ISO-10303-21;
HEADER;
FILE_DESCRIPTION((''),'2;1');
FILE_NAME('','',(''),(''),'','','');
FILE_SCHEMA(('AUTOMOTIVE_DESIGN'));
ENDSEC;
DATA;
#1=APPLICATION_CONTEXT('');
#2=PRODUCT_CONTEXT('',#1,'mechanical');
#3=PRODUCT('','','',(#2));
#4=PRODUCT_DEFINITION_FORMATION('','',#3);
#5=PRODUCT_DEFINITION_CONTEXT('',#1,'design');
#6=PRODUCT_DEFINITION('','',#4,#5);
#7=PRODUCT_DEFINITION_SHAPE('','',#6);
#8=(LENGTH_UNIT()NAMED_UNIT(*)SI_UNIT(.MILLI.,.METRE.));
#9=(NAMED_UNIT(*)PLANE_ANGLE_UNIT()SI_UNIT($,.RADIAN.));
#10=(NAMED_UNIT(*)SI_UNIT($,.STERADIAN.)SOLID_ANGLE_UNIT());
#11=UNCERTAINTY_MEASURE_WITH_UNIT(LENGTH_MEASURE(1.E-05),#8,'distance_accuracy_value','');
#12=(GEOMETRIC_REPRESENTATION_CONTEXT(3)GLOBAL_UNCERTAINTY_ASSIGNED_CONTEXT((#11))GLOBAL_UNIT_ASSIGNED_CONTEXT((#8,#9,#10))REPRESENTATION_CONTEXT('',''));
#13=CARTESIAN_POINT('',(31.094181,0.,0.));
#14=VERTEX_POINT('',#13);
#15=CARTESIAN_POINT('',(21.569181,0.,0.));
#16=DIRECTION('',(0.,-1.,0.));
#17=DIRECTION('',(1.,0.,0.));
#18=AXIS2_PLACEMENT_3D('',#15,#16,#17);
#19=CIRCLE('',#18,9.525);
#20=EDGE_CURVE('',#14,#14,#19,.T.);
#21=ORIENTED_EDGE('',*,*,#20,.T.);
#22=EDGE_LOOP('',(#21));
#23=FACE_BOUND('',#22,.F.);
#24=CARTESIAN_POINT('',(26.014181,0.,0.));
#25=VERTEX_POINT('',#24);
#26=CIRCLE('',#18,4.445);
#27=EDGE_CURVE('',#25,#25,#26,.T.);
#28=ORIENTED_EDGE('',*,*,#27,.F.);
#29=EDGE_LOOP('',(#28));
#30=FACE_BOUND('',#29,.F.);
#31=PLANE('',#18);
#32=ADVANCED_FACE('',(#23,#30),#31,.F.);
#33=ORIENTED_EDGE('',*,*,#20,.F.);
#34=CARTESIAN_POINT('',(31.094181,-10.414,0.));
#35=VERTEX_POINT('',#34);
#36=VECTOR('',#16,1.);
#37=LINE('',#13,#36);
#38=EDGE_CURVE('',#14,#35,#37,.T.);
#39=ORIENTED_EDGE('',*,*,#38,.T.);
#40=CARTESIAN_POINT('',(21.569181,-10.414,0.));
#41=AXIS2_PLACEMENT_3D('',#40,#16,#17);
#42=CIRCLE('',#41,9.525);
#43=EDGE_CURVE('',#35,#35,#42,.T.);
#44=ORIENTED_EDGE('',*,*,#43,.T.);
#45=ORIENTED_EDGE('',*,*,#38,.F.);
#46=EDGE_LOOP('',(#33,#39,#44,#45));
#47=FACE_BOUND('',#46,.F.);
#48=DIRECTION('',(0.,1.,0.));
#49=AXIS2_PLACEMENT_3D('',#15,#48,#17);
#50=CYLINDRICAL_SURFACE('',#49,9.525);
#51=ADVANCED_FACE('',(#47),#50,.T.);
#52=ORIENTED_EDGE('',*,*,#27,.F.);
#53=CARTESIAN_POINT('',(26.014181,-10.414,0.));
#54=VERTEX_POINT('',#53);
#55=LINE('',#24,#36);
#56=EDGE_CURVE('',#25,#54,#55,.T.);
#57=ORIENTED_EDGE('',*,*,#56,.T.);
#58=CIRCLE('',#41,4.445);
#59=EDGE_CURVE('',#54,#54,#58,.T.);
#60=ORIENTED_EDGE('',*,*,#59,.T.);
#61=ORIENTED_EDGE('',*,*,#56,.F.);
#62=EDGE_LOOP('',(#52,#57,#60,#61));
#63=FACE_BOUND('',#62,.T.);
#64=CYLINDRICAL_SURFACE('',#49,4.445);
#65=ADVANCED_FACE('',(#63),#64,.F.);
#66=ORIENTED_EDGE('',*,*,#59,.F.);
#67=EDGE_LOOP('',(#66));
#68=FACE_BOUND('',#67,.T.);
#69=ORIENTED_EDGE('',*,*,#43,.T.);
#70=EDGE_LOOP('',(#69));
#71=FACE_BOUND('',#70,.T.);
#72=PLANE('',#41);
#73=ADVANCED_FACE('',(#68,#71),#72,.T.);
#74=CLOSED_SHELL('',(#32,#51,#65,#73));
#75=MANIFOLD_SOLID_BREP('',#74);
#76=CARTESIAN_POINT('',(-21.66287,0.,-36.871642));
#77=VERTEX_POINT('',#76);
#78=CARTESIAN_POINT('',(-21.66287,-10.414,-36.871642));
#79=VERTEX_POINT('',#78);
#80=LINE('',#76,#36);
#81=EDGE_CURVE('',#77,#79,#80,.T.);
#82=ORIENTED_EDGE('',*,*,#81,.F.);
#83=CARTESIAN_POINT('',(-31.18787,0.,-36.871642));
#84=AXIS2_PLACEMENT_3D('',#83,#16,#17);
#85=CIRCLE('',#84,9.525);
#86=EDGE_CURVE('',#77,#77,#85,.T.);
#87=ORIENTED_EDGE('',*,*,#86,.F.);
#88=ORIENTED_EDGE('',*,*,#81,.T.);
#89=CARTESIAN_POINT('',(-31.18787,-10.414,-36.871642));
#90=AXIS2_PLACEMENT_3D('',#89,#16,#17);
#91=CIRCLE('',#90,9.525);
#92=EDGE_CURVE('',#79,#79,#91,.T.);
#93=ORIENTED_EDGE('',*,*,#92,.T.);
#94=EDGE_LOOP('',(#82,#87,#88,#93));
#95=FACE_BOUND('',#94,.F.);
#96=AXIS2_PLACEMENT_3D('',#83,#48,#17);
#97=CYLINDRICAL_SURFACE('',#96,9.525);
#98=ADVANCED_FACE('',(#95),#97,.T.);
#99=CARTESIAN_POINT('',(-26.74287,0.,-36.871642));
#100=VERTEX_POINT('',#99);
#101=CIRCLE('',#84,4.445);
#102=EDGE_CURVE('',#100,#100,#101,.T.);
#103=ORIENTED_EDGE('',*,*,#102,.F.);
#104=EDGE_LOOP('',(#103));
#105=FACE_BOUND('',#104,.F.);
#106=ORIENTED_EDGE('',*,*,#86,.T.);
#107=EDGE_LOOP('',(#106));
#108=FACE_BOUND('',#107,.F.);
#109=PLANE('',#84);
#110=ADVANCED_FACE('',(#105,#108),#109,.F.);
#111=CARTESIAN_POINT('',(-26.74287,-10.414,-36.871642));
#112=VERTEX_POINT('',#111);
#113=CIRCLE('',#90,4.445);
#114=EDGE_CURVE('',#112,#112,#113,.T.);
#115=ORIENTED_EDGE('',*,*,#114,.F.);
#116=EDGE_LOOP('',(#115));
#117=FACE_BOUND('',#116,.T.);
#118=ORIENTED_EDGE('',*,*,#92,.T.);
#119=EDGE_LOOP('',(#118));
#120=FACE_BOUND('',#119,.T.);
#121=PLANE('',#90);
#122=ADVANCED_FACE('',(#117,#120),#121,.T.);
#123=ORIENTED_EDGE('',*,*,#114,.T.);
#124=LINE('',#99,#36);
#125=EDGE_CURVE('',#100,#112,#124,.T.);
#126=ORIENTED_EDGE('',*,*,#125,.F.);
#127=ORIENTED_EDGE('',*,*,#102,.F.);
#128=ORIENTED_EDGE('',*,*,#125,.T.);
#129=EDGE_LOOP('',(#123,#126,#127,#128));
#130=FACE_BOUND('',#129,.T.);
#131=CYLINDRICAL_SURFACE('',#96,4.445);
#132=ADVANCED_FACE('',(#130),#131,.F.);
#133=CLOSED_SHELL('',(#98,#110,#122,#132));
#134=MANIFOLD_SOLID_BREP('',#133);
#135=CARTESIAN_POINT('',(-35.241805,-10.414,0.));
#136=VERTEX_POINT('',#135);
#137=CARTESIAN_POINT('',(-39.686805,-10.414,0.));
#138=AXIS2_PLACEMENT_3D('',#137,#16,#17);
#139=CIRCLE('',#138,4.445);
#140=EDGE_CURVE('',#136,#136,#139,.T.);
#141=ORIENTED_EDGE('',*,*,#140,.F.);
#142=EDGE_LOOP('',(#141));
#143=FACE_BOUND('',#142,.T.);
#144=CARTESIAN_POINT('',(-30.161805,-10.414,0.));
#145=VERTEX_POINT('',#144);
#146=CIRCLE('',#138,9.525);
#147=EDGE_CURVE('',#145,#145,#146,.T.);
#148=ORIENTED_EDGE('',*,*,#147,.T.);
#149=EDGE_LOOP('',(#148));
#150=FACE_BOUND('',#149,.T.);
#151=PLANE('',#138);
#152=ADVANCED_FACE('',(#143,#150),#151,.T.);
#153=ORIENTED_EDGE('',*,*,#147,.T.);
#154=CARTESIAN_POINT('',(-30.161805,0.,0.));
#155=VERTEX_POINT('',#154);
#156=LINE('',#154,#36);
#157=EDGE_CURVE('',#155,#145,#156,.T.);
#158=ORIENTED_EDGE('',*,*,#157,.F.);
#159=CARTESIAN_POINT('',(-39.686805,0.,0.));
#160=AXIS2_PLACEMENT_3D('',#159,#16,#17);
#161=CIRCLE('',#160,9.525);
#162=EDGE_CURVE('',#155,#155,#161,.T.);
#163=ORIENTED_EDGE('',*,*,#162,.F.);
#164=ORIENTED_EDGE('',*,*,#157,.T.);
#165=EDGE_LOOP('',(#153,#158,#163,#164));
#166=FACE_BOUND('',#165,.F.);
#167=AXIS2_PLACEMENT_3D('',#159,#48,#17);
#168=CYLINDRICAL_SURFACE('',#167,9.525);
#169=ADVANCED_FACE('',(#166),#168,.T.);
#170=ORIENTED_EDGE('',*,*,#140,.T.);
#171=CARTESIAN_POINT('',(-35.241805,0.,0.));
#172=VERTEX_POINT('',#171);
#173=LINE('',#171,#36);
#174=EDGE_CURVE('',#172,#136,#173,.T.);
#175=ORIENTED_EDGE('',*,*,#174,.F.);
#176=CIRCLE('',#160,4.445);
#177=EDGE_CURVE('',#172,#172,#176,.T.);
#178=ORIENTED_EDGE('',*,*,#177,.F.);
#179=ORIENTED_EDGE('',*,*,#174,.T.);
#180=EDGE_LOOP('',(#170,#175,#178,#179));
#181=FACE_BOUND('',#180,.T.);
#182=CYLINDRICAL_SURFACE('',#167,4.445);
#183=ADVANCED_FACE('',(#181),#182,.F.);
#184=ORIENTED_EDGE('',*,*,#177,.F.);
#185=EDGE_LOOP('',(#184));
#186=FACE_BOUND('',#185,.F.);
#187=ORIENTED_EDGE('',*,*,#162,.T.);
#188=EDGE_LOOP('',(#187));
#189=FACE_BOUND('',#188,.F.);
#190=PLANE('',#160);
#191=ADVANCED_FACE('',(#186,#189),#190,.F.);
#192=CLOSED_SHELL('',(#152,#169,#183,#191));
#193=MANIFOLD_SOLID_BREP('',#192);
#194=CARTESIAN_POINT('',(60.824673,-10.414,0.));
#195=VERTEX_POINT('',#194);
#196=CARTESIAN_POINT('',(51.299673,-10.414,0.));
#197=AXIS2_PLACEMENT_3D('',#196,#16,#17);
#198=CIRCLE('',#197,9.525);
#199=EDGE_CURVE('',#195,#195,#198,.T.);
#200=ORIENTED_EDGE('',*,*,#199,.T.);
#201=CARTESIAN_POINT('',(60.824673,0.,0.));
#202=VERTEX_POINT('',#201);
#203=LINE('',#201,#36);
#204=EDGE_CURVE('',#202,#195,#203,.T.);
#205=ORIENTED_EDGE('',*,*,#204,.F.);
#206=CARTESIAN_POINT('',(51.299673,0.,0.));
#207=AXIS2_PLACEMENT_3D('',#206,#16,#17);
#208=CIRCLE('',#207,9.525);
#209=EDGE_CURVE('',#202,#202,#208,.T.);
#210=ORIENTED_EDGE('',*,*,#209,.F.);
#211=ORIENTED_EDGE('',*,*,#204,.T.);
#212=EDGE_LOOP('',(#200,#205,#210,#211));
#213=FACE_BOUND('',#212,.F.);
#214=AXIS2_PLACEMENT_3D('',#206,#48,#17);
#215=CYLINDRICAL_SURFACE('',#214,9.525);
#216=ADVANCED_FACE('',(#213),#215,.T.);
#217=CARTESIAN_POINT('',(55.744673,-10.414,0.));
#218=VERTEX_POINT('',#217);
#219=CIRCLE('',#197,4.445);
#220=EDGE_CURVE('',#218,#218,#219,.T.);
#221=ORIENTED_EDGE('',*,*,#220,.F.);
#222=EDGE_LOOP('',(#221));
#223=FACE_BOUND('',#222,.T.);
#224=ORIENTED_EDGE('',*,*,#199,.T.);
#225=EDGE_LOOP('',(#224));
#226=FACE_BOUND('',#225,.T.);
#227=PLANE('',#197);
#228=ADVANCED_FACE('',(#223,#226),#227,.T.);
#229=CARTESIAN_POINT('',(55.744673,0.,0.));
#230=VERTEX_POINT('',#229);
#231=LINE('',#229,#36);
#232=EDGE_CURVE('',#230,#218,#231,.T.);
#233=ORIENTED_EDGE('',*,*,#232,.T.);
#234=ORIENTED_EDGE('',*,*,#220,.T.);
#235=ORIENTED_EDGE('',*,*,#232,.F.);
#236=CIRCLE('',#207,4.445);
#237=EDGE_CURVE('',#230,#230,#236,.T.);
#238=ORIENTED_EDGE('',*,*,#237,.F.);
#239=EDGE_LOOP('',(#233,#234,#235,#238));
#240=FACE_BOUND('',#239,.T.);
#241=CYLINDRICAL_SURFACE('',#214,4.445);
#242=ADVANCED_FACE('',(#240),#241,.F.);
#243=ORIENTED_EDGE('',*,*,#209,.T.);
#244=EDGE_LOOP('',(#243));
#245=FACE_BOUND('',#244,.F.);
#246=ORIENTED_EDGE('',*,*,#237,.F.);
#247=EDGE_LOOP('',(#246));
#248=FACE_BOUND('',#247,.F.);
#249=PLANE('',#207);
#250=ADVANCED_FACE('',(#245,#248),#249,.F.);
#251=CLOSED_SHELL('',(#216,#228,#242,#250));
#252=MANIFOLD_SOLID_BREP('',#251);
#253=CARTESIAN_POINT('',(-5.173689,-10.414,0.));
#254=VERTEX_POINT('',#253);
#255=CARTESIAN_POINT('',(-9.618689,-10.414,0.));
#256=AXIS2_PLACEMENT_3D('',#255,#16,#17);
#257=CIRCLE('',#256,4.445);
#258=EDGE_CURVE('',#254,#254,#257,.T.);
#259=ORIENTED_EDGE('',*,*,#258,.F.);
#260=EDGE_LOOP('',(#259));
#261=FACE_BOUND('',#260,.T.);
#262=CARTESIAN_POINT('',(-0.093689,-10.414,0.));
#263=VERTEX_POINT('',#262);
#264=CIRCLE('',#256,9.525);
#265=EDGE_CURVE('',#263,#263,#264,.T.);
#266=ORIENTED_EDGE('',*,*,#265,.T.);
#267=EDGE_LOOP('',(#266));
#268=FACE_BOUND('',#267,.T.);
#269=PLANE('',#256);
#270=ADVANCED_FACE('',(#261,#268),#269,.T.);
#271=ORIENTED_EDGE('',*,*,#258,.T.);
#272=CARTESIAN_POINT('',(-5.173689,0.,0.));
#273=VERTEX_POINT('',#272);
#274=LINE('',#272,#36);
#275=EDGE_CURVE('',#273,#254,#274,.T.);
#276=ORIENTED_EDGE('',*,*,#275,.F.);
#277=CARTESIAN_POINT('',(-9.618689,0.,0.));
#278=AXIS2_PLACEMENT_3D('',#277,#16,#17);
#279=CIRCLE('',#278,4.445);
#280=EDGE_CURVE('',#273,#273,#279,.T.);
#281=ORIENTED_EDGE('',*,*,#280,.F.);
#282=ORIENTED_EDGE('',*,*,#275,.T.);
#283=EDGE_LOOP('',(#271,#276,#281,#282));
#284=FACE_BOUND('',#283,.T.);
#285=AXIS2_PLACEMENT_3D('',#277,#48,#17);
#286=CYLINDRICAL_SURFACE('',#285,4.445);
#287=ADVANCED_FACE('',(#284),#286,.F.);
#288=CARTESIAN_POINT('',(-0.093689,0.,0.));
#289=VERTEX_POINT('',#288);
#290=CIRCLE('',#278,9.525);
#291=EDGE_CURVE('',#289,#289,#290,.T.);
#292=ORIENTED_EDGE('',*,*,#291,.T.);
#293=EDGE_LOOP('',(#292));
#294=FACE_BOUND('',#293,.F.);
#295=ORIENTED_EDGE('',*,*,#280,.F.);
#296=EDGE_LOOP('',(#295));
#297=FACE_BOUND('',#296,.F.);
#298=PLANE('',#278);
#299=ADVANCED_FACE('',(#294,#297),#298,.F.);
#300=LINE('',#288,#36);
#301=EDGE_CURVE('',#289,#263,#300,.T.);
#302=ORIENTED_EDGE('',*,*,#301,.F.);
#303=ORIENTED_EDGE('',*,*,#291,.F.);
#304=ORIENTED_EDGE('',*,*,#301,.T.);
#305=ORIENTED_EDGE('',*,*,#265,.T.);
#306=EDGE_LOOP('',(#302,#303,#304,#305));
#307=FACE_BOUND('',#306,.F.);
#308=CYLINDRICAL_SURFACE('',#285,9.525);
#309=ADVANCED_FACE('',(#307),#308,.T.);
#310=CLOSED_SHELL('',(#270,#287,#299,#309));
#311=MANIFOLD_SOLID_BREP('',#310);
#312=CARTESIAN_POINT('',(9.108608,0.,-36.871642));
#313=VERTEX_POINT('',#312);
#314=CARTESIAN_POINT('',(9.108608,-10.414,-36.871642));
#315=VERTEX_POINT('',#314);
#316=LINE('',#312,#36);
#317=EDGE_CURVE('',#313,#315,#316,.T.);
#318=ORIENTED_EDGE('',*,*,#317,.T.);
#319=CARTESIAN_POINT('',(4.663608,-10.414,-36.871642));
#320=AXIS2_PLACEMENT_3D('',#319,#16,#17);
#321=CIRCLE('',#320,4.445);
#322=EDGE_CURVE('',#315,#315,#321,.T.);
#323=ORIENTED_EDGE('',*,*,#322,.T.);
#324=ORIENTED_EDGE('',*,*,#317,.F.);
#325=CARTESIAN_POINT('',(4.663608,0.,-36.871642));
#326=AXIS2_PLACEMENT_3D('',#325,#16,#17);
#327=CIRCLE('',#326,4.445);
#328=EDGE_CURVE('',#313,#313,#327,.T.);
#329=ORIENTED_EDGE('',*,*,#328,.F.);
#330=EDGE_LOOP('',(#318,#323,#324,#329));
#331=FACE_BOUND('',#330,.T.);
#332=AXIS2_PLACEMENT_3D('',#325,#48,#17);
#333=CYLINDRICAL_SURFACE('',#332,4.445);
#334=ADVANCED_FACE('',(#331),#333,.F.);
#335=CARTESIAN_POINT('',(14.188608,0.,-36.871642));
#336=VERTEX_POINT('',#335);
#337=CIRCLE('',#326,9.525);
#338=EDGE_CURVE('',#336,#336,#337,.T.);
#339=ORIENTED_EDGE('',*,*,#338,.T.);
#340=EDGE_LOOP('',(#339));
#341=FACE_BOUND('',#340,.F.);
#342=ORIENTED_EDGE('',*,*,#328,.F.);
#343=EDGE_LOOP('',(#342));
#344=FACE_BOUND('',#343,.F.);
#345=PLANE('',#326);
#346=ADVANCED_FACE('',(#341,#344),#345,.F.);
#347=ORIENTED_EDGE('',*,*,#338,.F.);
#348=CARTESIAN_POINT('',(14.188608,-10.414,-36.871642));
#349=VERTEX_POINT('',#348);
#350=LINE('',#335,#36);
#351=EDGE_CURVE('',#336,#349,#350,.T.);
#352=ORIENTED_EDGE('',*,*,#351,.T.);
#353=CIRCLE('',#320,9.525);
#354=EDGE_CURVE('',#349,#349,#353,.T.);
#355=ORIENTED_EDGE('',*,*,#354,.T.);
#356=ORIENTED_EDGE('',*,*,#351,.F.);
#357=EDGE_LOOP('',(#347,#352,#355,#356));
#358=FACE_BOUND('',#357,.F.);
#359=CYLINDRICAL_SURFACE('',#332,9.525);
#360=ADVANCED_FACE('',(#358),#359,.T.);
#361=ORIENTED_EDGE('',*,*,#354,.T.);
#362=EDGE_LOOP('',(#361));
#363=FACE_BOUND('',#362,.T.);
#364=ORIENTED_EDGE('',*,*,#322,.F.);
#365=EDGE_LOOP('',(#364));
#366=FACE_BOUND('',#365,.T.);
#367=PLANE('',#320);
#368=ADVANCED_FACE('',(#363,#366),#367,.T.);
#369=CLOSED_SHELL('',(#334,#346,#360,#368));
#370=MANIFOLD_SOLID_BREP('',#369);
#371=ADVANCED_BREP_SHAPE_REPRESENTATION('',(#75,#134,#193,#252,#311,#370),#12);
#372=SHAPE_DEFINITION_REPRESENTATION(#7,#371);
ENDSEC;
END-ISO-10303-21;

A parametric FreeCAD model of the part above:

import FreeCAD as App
import Part
import Sketcher
from FreeCAD import Vector
Q = App.Units.Quantity

doc = App.newDocument("Part")
body = doc.addObject("PartDesign::Body", "Body")
body.AllowCompound = True

# Sketch on XZ plane
sketch1 = doc.addObject("Sketcher::SketchObject", "Sketch")
body.addObject(sketch1)
sketch1.AttachmentSupport = (doc.XZ_Plane, [""])
sketch1.MapMode = "FlatFace"
sketch1.addGeometry(Part.Circle(Vector(-39.7, 0, 0), Vector(0, 0, 1), 9.5), False)
sketch1.addGeometry(Part.Circle(Vector(-39.7, 0, 0), Vector(0, 0, 1), 4.4), False)
sketch1.addGeometry(Part.Circle(Vector(-9.6, 0, 0), Vector(0, 0, 1), 9.5), False)
sketch1.addGeometry(Part.Circle(Vector(-9.6, 0, 0), Vector(0, 0, 1), 4.4), False)
sketch1.addGeometry(Part.Circle(Vector(21.6, 0, 0), Vector(0, 0, 1), 9.5), False)
sketch1.addGeometry(Part.Circle(Vector(21.6, 0, 0), Vector(0, 0, 1), 4.4), False)
sketch1.addGeometry(Part.Circle(Vector(51.3, 0, 0), Vector(0, 0, 1), 9.5), False)
sketch1.addGeometry(Part.Circle(Vector(51.3, 0, 0), Vector(0, 0, 1), 4.4), False)
sketch1.addGeometry(Part.Circle(Vector(-31.2, -36.9, 0), Vector(0, 0, 1), 9.5), False)
sketch1.addGeometry(Part.Circle(Vector(-31.2, -36.9, 0), Vector(0, 0, 1), 4.4), False)
sketch1.addGeometry(Part.Circle(Vector(4.7, -36.9, 0), Vector(0, 0, 1), 9.5), False)
sketch1.addGeometry(Part.Circle(Vector(4.7, -36.9, 0), Vector(0, 0, 1), 4.4), False)
sketch1.addConstraint(Sketcher.Constraint("Coincident", 1, 3, 0, 3))
sketch1.addConstraint(Sketcher.Constraint("Coincident", 3, 3, 2, 3))
sketch1.addConstraint(Sketcher.Constraint("Coincident", 5, 3, 4, 3))
sketch1.addConstraint(Sketcher.Constraint("Coincident", 7, 3, 6, 3))
sketch1.addConstraint(Sketcher.Constraint("Coincident", 9, 3, 8, 3))
sketch1.addConstraint(Sketcher.Constraint("Coincident", 11, 3, 10, 3))
sketch1.addConstraint(Sketcher.Constraint("Equal", 0, 2))
sketch1.addConstraint(Sketcher.Constraint("Equal", 1, 3))
sketch1.addConstraint(Sketcher.Constraint("Equal", 2, 4))
sketch1.addConstraint(Sketcher.Constraint("Equal", 3, 5))
sketch1.addConstraint(Sketcher.Constraint("Equal", 4, 6))
sketch1.addConstraint(Sketcher.Constraint("Equal", 5, 7))
sketch1.addConstraint(Sketcher.Constraint("Equal", 6, 8))
sketch1.addConstraint(Sketcher.Constraint("Equal", 7, 9))
sketch1.addConstraint(Sketcher.Constraint("Equal", 8, 10))
sketch1.addConstraint(Sketcher.Constraint("Equal", 9, 11))
sketch1.addConstraint(Sketcher.Constraint("PointOnObject", 0, 3, -1))
sketch1.addConstraint(Sketcher.Constraint("PointOnObject", 2, 3, -1))
sketch1.addConstraint(Sketcher.Constraint("PointOnObject", 4, 3, -1))
sketch1.addConstraint(Sketcher.Constraint("PointOnObject", 6, 3, -1))
sketch1.addConstraint(Sketcher.Constraint("Horizontal", 9, 3, 10, 3))
sketch1.addConstraint(Sketcher.Constraint("Diameter", 0, Q("0.75 in")))
sketch1.addConstraint(Sketcher.Constraint("Diameter", 1, Q("0.35 in")))
sketch1.addConstraint(Sketcher.Constraint("DistanceX", 2, 3, -1, 1, 9.618689))
sketch1.addConstraint(Sketcher.Constraint("DistanceX", -1, 1, 4, 3, 21.569181))
sketch1.addConstraint(Sketcher.Constraint("DistanceX", 8, 3, -1, 1, 31.18787))
sketch1.addConstraint(Sketcher.Constraint("DistanceX", 4, 3, 6, 3, 29.730492))
sketch1.addConstraint(Sketcher.Constraint("DistanceX", 0, 3, 6, 3, 90.986478))
sketch1.addConstraint(Sketcher.Constraint("DistanceY", 8, 3, -1, 1, 36.871642))
sketch1.addConstraint(Sketcher.Constraint("DistanceX", -1, 1, 10, 3, 4.663608))
pad1 = doc.addObject("PartDesign::Pad", "Pad")
body.addObject(pad1)
pad1.Profile = sketch1
pad1.Length = Q("0.41 in")

doc.recompute()
